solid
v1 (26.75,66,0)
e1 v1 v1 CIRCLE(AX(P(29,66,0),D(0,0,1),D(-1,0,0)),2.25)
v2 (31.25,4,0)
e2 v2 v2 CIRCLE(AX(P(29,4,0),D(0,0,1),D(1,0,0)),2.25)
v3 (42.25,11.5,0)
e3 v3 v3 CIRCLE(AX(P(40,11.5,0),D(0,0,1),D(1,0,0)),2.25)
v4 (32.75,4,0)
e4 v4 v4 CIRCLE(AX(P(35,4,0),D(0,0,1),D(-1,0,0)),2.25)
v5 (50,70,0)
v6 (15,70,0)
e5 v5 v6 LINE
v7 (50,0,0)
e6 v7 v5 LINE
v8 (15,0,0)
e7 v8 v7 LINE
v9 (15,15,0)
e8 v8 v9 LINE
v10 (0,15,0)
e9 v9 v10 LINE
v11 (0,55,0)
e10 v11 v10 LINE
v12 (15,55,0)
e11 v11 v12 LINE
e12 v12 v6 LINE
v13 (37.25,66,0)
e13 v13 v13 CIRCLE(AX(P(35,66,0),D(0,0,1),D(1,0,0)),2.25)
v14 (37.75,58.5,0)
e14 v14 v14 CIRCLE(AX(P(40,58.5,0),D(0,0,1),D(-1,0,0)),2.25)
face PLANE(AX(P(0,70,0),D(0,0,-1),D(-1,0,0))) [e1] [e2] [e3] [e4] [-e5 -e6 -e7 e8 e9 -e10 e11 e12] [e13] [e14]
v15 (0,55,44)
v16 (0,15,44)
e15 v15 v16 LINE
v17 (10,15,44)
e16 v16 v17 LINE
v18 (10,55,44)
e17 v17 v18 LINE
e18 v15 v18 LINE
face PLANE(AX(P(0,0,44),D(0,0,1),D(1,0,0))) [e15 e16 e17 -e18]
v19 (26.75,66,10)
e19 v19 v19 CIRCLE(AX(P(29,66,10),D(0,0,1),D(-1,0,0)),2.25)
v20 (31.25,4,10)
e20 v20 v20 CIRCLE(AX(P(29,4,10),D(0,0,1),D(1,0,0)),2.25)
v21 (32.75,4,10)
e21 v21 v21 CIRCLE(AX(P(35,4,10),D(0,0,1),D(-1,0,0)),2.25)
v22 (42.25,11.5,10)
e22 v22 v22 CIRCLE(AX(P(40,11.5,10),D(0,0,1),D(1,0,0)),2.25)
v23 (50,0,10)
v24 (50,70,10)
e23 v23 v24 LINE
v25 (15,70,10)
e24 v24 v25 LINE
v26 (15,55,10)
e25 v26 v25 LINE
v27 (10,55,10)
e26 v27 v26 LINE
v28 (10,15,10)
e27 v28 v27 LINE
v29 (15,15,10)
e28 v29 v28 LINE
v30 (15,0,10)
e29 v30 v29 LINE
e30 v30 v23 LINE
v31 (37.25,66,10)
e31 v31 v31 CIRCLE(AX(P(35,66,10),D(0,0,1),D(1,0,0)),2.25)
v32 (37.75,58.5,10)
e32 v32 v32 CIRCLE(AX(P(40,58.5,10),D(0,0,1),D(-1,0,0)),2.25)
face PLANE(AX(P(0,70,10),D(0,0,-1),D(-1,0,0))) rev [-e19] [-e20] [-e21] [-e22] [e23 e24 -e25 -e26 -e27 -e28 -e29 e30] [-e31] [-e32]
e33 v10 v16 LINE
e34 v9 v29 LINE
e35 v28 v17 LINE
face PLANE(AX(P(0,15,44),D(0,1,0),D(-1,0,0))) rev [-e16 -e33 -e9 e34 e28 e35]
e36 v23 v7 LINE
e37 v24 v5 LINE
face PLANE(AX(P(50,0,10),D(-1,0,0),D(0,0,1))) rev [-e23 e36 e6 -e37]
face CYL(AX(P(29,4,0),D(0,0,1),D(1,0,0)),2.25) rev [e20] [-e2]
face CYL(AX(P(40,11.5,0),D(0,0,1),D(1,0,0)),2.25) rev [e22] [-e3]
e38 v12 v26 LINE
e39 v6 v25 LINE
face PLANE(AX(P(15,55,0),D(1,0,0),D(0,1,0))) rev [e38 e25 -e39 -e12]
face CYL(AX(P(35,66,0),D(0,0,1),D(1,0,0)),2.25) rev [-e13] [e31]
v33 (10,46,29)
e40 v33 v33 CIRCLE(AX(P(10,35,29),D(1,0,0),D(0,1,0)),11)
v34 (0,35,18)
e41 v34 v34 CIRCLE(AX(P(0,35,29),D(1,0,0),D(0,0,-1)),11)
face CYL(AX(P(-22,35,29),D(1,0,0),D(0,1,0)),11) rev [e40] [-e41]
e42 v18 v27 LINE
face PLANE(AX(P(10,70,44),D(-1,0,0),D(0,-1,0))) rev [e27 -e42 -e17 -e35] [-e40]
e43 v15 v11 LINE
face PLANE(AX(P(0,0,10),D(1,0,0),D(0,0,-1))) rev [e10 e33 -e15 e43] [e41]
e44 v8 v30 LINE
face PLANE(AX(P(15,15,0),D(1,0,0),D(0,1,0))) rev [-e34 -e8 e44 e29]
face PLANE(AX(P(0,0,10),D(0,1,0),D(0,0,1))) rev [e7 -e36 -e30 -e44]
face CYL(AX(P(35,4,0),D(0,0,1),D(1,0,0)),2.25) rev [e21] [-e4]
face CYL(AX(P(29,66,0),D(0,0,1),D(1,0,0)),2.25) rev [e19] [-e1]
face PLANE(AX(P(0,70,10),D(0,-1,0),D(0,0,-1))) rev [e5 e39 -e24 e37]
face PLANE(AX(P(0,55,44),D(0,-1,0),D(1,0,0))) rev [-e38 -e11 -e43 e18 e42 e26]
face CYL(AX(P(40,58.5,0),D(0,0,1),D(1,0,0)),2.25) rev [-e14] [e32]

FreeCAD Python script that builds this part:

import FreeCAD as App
import Part
import Sketcher

doc = App.newDocument("Part")
body = doc.addObject("PartDesign::Body", "Body")

# Sketch on XY plane
sketch1 = body.newObject("Sketcher::SketchObject", "Sketch")
sketch1.AttachmentSupport = (doc.getObject("XY_Plane"), [""])
sketch1.MapMode = "FlatFace"
sketch1.addGeometry([
    Part.LineSegment(App.Vector(0, 70, 0), App.Vector(0, 0, 0)),
    Part.LineSegment(App.Vector(0, 0, 0), App.Vector(50, 0, 0)),
    Part.LineSegment(App.Vector(50, 0, 0), App.Vector(50, 70, 0)),
    Part.LineSegment(App.Vector(50, 70, 0), App.Vector(0, 70, 0)),
], False)
sketch1.addConstraint([
    Sketcher.Constraint("Coincident", 0, 2, 1, 1),
    Sketcher.Constraint("Coincident", 1, 2, 2, 1),
    Sketcher.Constraint("Coincident", 2, 2, 3, 1),
    Sketcher.Constraint("Coincident", 3, 2, 0, 1),
    Sketcher.Constraint("Vertical", 0),
    Sketcher.Constraint("Horizontal", 1),
    Sketcher.Constraint("Vertical", 2),
    Sketcher.Constraint("Horizontal", 3),
    Sketcher.Constraint("Coincident", 0, 2, -1, 1),
    Sketcher.Constraint("DistanceX", 1, 1, 1, 2, 50.0),
    Sketcher.Constraint("DistanceY", 0, 2, 0, 1, 70.0),
])
pad1 = body.newObject("PartDesign::Pad", "Pad")
pad1.Profile = sketch1
pad1.Length = 10

# Sketch on XY plane
sketch2 = body.newObject("Sketcher::SketchObject", "Sketch001")
sketch2.AttachmentSupport = (doc.getObject("XY_Plane"), [""])
sketch2.MapMode = "FlatFace"
sketch2.AttachmentOffset = App.Placement(App.Vector(0, 0, 10), App.Rotation())
sketch2.addGeometry([
    Part.LineSegment(App.Vector(0, 70, 0), App.Vector(0, 0, 0)),
    Part.LineSegment(App.Vector(0, 0, 0), App.Vector(10, 0, 0)),
    Part.LineSegment(App.Vector(10, 0, 0), App.Vector(10, 70, 0)),
    Part.LineSegment(App.Vector(10, 70, 0), App.Vector(0, 70, 0)),
], False)
sketch2.addConstraint([
    Sketcher.Constraint("Coincident", 0, 2, 1, 1),
    Sketcher.Constraint("Coincident", 1, 2, 2, 1),
    Sketcher.Constraint("Coincident", 2, 2, 3, 1),
    Sketcher.Constraint("Coincident", 3, 2, 0, 1),
    Sketcher.Constraint("Vertical", 0),
    Sketcher.Constraint("Horizontal", 1),
    Sketcher.Constraint("Vertical", 2),
    Sketcher.Constraint("Horizontal", 3),
    Sketcher.Constraint("Coincident", 0, 2, -1, 1),
    Sketcher.Constraint("DistanceX", 1, 1, 1, 2, 10.0),
    Sketcher.Constraint("DistanceY", 0, 2, 0, 1, 70.0),
])
pad2 = body.newObject("PartDesign::Pad", "Pad001")
pad2.Profile = sketch2
pad2.Length = 34

# Sketch on YZ plane
sketch3 = body.newObject("Sketcher::SketchObject", "Sketch002")
sketch3.AttachmentSupport = (doc.getObject("YZ_Plane"), [""])
sketch3.MapMode = "FlatFace"
sketch3.AttachmentOffset = App.Placement(App.Vector(0, 0, 10), App.Rotation())
sketch3.addGeometry(Part.Circle(App.Vector(35, 29, 0), App.Vector(0, 0, 1), 11), False)
sketch3.addConstraint([
    Sketcher.Constraint("Diameter", 0, 22.0),
    Sketcher.Constraint("DistanceX", -1, 1, 0, 3, 35.0),
    Sketcher.Constraint("DistanceY", -1, 1, 0, 3, 29.0),
])
pocket1 = body.newObject("PartDesign::Pocket", "Pocket")
pocket1.Profile = sketch3
pocket1.Length = 32

# Sketch on XY plane
sketch4 = body.newObject("Sketcher::SketchObject", "Sketch003")
sketch4.AttachmentSupport = (doc.getObject("XY_Plane"), [""])
sketch4.MapMode = "FlatFace"
sketch4.AttachmentOffset = App.Placement(App.Vector(0, 0, 10), App.Rotation())
sketch4.addGeometry([
    Part.Circle(App.Vector(40, 11.5, 0), App.Vector(0, 0, 1), 2.25),
    Part.Circle(App.Vector(40, 58.5, 0), App.Vector(0, 0, 1), 2.25),
], False)
sketch4.addConstraint([
    Sketcher.Constraint("Equal", 0, 1),
    Sketcher.Constraint("Vertical", 0, 3, 1, 3),
    Sketcher.Constraint("Diameter", 0, 4.5),
    Sketcher.Constraint("DistanceX", -1, 1, 0, 3, 40.0),
    Sketcher.Constraint("DistanceY", 0, 3, 1, 3, 47.0),
    Sketcher.Constraint("DistanceY", -1, 1, 0, 3, 11.5),
])
pocket2 = body.newObject("PartDesign::Pocket", "Pocket001")
pocket2.Profile = sketch4
pocket2.Type = "ThroughAll"

# Sketch on XY plane
sketch5 = body.newObject("Sketcher::SketchObject", "Sketch004")
sketch5.AttachmentSupport = (doc.getObject("XY_Plane"), [""])
sketch5.MapMode = "FlatFace"
sketch5.AttachmentOffset = App.Placement(App.Vector(0, 0, 10), App.Rotation())
sketch5.addGeometry([
    Part.Circle(App.Vector(35, 66, 0), App.Vector(0, 0, 1), 2.25),
    Part.Circle(App.Vector(35, 4, 0), App.Vector(0, 0, 1), 2.25),
    Part.Circle(App.Vector(29, 4, 0), App.Vector(0, 0, 1), 2.25),
    Part.Circle(App.Vector(29, 66, 0), App.Vector(0, 0, 1), 2.25),
], False)
sketch5.addConstraint([
    Sketcher.Constraint("Equal", 0, 1),
    Sketcher.Constraint("Equal", 1, 2),
    Sketcher.Constraint("Equal", 2, 3),
    Sketcher.Constraint("Horizontal", 1, 3, 2, 3),
    Sketcher.Constraint("Horizontal", 0, 3, 3, 3),
    Sketcher.Constraint("Vertical", 0, 3, 1, 3),
    Sketcher.Constraint("Vertical", 2, 3, 3, 3),
    Sketcher.Constraint("Diameter", 0, 4.5),
    Sketcher.Constraint("DistanceX", -1, 1, 0, 3, 35.0),
    Sketcher.Constraint("DistanceY", -1, 1, 0, 3, 66.0),
    Sketcher.Constraint("DistanceY", -1, 1, 1, 3, 4.0),
    Sketcher.Constraint("DistanceX", -1, 1, 2, 3, 29.0),
])
pocket3 = body.newObject("PartDesign::Pocket", "Pocket002")
pocket3.Profile = sketch5
pocket3.Type = "ThroughAll"

# Sketch on YZ plane
sketch6 = body.newObject("Sketcher::SketchObject", "Sketch005")
sketch6.AttachmentSupport = (doc.getObject("YZ_Plane"), [""])
sketch6.MapMode = "FlatFace"
sketch6.AttachmentOffset = App.Placement(App.Vector(0, 0, 10), App.Rotation())
sketch6.addGeometry([
    Part.LineSegment(App.Vector(15, 44, 0), App.Vector(0, 44, 0)),  # 0
    Part.LineSegment(App.Vector(0, 44, 0), App.Vector(0, 10, 0)),  # 1
    Part.LineSegment(App.Vector(0, 10, 0), App.Vector(15, 10, 0)),  # 2
    Part.LineSegment(App.Vector(15, 10, 0), App.Vector(15, 44, 0)),  # 3
    Part.LineSegment(App.Vector(70, 44, 0), App.Vector(55, 44, 0)),  # 4
    Part.LineSegment(App.Vector(55, 44, 0), App.Vector(55, 10, 0)),  # 5
    Part.LineSegment(App.Vector(55, 10, 0), App.Vector(70, 10, 0)),  # 6
    Part.LineSegment(App.Vector(70, 10, 0), App.Vector(70, 44, 0)),  # 7
], False)
sketch6.addConstraint([
    Sketcher.Constraint("Coincident", 0, 2, 1, 1),
    Sketcher.Constraint("Coincident", 1, 2, 2, 1),
    Sketcher.Constraint("Coincident", 2, 2, 3, 1),
    Sketcher.Constraint("Coincident", 3, 2, 0, 1),
    Sketcher.Constraint("Coincident", 4, 2, 5, 1),
    Sketcher.Constraint("Coincident", 5, 2, 6, 1),
    Sketcher.Constraint("Coincident", 6, 2, 7, 1),
    Sketcher.Constraint("Coincident", 7, 2, 4, 1),
    Sketcher.Constraint("Horizontal", 0),
    Sketcher.Constraint("Vertical", 1),
    Sketcher.Constraint("Horizontal", 2),
    Sketcher.Constraint("Vertical", 3),
    Sketcher.Constraint("Horizontal", 4),
    Sketcher.Constraint("Vertical", 5),
    Sketcher.Constraint("Horizontal", 6),
    Sketcher.Constraint("Vertical", 7),
    Sketcher.Constraint("PointOnObject", 0, 2, -2),
    Sketcher.Constraint("Horizontal", 3, 2, 4, 2),
    Sketcher.Constraint("Horizontal", 2, 2, 5, 2),
    Sketcher.Constraint("Equal", 2, 4),
    Sketcher.Constraint("DistanceX", 0, 2, 0, 1, 15.0),
    Sketcher.Constraint("DistanceY", 1, 2, 1, 1, 34.0),
    Sketcher.Constraint("DistanceY", -1, 1, 0, 2, 44.0),
    Sketcher.Constraint("DistanceX", -1, 1, 4, 2, 55.0),
])
pocket4 = body.newObject("PartDesign::Pocket", "Pocket003")
pocket4.Profile = sketch6
pocket4.Type = "ThroughAll"

# Sketch on XY plane
sketch7 = body.newObject("Sketcher::SketchObject", "Sketch006")
sketch7.AttachmentSupport = (doc.getObject("XY_Plane"), [""])
sketch7.MapMode = "FlatFace"
sketch7.AttachmentOffset = App.Placement(App.Vector(0, 0, 10), App.Rotation())
sketch7.addGeometry([
    Part.LineSegment(App.Vector(0, 15, 0), App.Vector(0, 0, 0)),  # 0
    Part.LineSegment(App.Vector(0, 0, 0), App.Vector(15, 0, 0)),  # 1
    Part.LineSegment(App.Vector(15, 0, 0), App.Vector(15, 15, 0)),  # 2
    Part.LineSegment(App.Vector(15, 15, 0), App.Vector(0, 15, 0)),  # 3
    Part.LineSegment(App.Vector(0, 70, 0), App.Vector(0, 55, 0)),  # 4
    Part.LineSegment(App.Vector(0, 55, 0), App.Vector(15, 55, 0)),  # 5
    Part.LineSegment(App.Vector(15, 55, 0), App.Vector(15, 70, 0)),  # 6
    Part.LineSegment(App.Vector(15, 70, 0), App.Vector(0, 70, 0)),  # 7
], False)
sketch7.addConstraint([
    Sketcher.Constraint("Coincident", 0, 2, 1, 1),
    Sketcher.Constraint("Coincident", 1, 2, 2, 1),
    Sketcher.Constraint("Coincident", 2, 2, 3, 1),
    Sketcher.Constraint("Coincident", 3, 2, 0, 1),
    Sketcher.Constraint("Coincident", 4, 2, 5, 1),
    Sketcher.Constraint("Coincident", 5, 2, 6, 1),
    Sketcher.Constraint("Coincident", 6, 2, 7, 1),
    Sketcher.Constraint("Coincident", 7, 2, 4, 1),
    Sketcher.Constraint("Vertical", 0),
    Sketcher.Constraint("Horizontal", 1),
    Sketcher.Constraint("Vertical", 2),
    Sketcher.Constraint("Horizontal", 3),
    Sketcher.Constraint("Vertical", 4),
    Sketcher.Constraint("Horizontal", 5),
    Sketcher.Constraint("Vertical", 6),
    Sketcher.Constraint("Horizontal", 7),
    Sketcher.Constraint("Coincident", 0, 2, -1, 1),
    Sketcher.Constraint("PointOnObject", 4, 2, -2),
    Sketcher.Constraint("Vertical", 2, 2, 5, 2),
    Sketcher.Constraint("Equal", 7, 0),
    Sketcher.Constraint("Equal", 2, 4),
    Sketcher.Constraint("DistanceX", 1, 1, 1, 2, 15.0),
    Sketcher.Constraint("DistanceY", -1, 1, 4, 2, 55.0),
])
pocket5 = body.newObject("PartDesign::Pocket", "Pocket004")
pocket5.Profile = sketch7
pocket5.Type = "ThroughAll"

doc.recompute()
